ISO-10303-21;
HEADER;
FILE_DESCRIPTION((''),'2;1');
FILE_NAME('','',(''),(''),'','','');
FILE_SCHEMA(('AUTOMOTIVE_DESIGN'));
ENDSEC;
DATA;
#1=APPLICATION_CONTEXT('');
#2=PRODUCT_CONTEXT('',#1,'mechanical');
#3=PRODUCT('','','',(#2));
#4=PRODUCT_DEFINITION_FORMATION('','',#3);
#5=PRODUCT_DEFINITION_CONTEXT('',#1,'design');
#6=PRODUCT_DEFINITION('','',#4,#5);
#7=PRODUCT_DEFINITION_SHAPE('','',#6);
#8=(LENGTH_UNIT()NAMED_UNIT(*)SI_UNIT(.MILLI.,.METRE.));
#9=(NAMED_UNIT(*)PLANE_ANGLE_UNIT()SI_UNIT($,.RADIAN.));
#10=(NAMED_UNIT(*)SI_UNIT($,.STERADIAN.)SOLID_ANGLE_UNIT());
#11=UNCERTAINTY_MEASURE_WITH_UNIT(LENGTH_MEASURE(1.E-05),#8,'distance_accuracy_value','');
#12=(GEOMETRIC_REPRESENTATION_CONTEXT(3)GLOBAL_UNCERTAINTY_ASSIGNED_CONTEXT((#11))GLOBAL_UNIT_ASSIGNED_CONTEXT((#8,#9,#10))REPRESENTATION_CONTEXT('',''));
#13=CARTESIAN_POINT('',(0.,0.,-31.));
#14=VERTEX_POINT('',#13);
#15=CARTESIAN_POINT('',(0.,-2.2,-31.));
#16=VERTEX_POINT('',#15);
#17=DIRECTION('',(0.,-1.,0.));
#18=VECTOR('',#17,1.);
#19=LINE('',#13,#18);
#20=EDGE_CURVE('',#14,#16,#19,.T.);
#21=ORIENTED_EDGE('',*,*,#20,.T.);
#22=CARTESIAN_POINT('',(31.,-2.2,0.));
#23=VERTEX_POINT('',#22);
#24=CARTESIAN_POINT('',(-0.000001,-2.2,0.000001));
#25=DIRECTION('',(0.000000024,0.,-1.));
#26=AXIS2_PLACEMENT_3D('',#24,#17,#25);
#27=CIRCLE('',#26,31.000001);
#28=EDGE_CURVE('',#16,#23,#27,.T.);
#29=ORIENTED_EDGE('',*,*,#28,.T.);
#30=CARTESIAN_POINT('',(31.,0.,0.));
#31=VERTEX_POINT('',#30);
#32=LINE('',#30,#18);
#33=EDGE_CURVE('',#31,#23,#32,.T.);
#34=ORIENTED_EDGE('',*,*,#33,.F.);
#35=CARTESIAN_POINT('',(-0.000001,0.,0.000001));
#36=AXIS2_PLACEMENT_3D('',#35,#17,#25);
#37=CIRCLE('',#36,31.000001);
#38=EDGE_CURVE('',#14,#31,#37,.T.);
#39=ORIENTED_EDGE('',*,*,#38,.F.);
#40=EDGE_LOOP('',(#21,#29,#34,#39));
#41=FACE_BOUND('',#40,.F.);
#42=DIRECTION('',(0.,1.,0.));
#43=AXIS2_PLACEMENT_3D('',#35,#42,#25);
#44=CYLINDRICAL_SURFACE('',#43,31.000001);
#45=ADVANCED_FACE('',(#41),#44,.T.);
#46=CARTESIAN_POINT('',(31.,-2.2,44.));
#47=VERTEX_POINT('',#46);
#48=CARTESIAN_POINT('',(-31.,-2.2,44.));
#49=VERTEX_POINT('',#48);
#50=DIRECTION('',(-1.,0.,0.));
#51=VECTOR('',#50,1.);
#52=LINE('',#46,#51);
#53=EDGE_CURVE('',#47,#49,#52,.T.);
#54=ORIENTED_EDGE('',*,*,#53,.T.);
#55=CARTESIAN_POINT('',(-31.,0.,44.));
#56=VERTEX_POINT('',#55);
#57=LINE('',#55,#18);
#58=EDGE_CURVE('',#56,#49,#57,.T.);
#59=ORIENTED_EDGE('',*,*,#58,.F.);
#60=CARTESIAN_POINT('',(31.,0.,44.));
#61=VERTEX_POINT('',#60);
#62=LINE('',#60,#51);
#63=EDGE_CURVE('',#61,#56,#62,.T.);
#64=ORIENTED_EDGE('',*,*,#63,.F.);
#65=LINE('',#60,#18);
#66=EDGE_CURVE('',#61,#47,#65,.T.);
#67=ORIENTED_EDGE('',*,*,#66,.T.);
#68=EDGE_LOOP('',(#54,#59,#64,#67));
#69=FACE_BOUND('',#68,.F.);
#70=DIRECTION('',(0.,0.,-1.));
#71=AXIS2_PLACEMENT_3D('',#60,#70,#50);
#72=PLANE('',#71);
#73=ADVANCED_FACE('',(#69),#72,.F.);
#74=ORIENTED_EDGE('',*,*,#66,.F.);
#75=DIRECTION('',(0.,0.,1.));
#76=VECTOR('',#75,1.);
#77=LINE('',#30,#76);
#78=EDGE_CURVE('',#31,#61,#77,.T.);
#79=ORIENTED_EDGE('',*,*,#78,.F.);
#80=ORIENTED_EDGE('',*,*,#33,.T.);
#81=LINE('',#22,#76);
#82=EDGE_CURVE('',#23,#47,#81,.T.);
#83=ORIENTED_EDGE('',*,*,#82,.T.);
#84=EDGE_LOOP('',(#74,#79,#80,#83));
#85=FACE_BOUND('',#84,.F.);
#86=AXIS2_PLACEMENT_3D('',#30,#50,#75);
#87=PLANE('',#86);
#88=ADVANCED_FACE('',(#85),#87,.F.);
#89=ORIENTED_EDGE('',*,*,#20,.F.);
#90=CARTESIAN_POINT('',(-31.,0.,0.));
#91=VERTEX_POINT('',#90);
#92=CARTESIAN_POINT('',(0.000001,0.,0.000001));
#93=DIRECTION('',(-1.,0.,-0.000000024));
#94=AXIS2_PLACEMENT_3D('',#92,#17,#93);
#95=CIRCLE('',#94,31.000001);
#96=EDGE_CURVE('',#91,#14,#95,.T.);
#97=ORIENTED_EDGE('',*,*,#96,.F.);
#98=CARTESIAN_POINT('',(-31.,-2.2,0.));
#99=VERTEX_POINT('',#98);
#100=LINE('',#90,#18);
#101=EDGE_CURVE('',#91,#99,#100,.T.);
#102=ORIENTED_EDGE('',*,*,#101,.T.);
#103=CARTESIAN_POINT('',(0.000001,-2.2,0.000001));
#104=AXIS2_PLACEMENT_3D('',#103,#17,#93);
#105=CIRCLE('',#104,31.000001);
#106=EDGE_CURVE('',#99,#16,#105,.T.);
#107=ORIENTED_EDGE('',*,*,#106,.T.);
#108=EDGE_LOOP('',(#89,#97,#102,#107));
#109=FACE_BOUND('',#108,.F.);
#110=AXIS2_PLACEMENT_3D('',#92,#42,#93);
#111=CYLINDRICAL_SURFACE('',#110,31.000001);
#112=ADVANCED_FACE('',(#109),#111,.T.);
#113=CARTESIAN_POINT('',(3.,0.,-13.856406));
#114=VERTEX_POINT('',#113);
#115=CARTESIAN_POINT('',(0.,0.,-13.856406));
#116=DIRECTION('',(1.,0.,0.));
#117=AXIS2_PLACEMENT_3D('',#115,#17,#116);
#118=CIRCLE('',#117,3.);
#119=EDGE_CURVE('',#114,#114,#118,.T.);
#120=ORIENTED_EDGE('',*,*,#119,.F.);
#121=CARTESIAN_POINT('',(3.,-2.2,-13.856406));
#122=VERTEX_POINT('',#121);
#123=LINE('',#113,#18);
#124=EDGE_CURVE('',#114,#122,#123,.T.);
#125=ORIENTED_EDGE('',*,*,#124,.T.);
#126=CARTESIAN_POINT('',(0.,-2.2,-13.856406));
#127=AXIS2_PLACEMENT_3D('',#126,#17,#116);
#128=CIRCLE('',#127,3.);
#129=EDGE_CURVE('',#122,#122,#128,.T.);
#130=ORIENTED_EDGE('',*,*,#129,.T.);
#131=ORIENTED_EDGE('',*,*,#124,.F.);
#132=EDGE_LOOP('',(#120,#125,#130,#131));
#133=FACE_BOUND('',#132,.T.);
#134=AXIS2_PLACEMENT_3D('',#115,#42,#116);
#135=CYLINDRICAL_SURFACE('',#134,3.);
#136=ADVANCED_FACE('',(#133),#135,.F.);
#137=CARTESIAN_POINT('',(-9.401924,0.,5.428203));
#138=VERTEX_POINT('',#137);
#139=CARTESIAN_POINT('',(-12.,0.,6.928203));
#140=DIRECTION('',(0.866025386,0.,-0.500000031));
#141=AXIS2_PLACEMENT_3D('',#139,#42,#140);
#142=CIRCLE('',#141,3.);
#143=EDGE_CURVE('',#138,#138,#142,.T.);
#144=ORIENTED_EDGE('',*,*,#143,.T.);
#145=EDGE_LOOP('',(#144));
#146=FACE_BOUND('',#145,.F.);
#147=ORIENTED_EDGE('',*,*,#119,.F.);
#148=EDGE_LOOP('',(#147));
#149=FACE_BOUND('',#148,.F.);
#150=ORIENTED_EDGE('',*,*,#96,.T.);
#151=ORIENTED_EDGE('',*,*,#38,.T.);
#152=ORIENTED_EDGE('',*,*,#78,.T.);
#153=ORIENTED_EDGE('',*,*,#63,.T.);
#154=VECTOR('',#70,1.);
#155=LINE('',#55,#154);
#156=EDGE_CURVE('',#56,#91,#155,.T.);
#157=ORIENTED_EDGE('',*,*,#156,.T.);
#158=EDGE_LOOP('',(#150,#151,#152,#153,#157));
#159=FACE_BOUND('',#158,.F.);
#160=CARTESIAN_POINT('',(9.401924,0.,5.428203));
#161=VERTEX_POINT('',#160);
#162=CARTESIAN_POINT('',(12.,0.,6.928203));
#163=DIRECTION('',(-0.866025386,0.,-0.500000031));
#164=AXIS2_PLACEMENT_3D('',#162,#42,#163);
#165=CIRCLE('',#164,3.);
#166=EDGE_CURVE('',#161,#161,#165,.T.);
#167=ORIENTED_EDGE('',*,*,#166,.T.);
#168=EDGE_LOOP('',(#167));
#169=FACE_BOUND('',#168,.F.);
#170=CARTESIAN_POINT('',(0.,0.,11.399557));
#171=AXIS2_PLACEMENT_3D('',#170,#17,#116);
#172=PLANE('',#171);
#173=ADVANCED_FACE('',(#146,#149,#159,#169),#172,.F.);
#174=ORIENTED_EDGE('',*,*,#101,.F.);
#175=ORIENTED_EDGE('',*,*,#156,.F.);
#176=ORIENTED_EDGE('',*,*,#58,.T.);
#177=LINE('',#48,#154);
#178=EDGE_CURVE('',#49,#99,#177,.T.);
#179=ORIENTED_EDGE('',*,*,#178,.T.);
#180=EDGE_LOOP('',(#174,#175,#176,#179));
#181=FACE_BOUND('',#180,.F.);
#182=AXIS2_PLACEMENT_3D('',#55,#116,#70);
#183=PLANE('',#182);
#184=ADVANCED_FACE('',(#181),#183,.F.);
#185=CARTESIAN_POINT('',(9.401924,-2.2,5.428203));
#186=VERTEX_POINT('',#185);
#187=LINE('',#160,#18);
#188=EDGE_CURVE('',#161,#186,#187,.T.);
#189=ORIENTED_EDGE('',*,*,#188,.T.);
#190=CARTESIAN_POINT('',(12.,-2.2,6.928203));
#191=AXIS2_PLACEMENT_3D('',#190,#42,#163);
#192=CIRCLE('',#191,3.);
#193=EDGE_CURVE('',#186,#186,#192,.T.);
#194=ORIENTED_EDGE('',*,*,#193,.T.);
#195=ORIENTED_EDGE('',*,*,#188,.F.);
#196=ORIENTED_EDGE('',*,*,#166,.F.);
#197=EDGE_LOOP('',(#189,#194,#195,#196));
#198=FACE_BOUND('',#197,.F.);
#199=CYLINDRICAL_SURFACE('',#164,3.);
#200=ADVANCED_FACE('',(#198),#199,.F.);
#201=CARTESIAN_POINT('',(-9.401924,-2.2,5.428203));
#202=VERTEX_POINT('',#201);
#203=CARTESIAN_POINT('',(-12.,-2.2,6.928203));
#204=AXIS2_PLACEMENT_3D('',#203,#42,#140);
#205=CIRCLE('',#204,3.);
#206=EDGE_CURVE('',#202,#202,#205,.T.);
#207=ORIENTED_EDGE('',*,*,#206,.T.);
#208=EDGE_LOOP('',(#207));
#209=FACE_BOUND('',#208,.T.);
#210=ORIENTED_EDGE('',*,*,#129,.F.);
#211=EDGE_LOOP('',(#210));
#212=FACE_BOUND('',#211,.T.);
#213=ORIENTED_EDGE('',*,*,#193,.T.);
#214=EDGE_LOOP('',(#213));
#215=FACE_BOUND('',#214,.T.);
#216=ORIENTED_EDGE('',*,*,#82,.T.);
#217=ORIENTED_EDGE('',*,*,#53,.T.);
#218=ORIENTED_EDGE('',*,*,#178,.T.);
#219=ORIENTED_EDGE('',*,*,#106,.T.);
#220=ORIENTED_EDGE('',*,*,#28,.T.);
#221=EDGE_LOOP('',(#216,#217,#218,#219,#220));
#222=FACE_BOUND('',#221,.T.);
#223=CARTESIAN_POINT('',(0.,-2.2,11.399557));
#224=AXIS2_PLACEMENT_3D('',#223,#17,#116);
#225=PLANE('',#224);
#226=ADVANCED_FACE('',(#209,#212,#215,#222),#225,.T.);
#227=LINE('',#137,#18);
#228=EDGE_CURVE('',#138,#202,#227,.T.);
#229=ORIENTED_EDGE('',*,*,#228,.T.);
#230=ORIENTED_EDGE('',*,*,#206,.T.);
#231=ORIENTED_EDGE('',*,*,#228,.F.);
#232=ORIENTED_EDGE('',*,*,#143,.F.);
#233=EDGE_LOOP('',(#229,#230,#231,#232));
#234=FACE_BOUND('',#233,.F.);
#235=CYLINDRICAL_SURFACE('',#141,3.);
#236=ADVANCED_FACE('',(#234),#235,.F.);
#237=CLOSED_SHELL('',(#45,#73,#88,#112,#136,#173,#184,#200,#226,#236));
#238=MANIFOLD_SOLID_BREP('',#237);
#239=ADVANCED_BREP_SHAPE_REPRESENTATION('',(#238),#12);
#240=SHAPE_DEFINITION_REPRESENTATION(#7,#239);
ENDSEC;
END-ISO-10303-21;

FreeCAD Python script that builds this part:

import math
import FreeCAD as App
import Part
import Sketcher

V = App.Vector

doc = App.newDocument("Part")
body = doc.addObject("PartDesign::Body", "Body")

sketch1 = body.newObject("Sketcher::SketchObject", "Sketch")
sketch1.AttachmentSupport = (doc.getObject("XZ_Plane"), [""])
sketch1.MapMode = "FlatFace"
sketch1.addGeometry(Part.ArcOfCircle(Part.Circle(V(0, 0, 0), V(0, 0, 1), 31), math.radians(-180), math.radians(-90)), False)
sketch1.addGeometry(Part.ArcOfCircle(Part.Circle(V(0, 0, 0), V(0, 0, 1), 31), math.radians(-90), math.radians(0)), False)
sketch1.addGeometry(Part.LineSegment(V(31, 0, 0), V(31, 44, 0)), False)
sketch1.addGeometry(Part.LineSegment(V(31, 44, 0), V(-31, 44, 0)), False)
sketch1.addGeometry(Part.LineSegment(V(-31, 44, 0), V(-31, 0, 0)), False)
sketch1.addGeometry(Part.Circle(V(0, -13.9, 0), V(0, 0, 1), 3), False)
sketch1.addGeometry(Part.Circle(V(-12, 6.9, 0), V(0, 0, 1), 3), False)
sketch1.addGeometry(Part.Circle(V(12, 6.9, 0), V(0, 0, 1), 3), False)
sketch1.addConstraint(Sketcher.Constraint("Tangent", 0, 2, 1, 1))
sketch1.addConstraint(Sketcher.Constraint("Tangent", 1, 2, 2, 1))
sketch1.addConstraint(Sketcher.Constraint("Coincident", 2, 2, 3, 1))
sketch1.addConstraint(Sketcher.Constraint("Coincident", 3, 2, 4, 1))
sketch1.addConstraint(Sketcher.Constraint("Tangent", 4, 2, 0, 1))
sketch1.addConstraint(Sketcher.Constraint("Vertical", 2))
sketch1.addConstraint(Sketcher.Constraint("Horizontal", 3))
sketch1.addConstraint(Sketcher.Constraint("Vertical", 4))
sketch1.addConstraint(Sketcher.Constraint("Coincident", 0, 3, -1, 1))
sketch1.addConstraint(Sketcher.Constraint("Equal", 0, 1))
sketch1.addConstraint(Sketcher.Constraint("Equal", 5, 6))
sketch1.addConstraint(Sketcher.Constraint("Equal", 6, 7))
sketch1.addConstraint(Sketcher.Constraint("Symmetric", 6, 3, 7, 3, -2))
sketch1.addConstraint(Sketcher.Constraint("PointOnObject", 5, 3, -2))
sketch1.addConstraint(Sketcher.Constraint("PointOnObject", 0, 2, -2))
sketch1.addConstraint(Sketcher.Constraint("Diameter", 5, 6.0))
sketch1.addConstraint(Sketcher.Constraint("Radius", 0, 31.000001))
sketch1.addConstraint(Sketcher.Constraint("DistanceY", 2, 1, 2, 2, 44.0))
sketch1.addConstraint(Sketcher.Constraint("DistanceX", 6, 3, -1, 1, 12.0))
sketch1.addConstraint(Sketcher.Constraint("DistanceY", 5, 3, 6, 3, 20.784609))
sketch1.addConstraint(Sketcher.Constraint("DistanceY", 5, 3, -1, 1, 13.856406))
pad1 = body.newObject("PartDesign::Pad", "Pad")
pad1.Profile = sketch1
pad1.Length = 2.2

doc.recompute()
